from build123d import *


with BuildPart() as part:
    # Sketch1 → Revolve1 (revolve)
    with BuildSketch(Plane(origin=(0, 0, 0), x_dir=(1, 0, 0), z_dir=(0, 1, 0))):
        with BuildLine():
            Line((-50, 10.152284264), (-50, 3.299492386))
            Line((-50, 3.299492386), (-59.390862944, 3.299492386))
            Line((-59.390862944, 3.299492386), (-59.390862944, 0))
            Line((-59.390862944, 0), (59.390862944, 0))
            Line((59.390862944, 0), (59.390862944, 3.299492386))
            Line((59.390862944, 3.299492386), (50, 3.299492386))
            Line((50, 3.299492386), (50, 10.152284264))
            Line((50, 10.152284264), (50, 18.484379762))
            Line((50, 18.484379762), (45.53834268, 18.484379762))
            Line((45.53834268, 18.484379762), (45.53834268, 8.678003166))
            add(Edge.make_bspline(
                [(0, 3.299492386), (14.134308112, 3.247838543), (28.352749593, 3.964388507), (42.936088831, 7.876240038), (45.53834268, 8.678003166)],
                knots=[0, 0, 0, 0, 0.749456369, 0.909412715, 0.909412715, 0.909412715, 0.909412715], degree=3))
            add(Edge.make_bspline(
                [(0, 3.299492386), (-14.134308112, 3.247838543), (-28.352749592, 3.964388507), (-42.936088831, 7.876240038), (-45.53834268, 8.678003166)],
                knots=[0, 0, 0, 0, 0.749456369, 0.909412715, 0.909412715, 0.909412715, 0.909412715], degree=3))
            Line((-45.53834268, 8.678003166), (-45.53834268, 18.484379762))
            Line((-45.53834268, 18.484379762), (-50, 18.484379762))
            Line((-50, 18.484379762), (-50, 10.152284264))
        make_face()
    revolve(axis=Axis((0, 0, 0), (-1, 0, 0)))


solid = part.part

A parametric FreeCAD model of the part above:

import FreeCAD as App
import Part
import Sketcher

doc = App.newDocument("Part")
params = doc.addObject("Spreadsheet::Sheet", "Params")
for row, (alias, value) in enumerate([
    ("revolution_angle", "360 deg"),
], start=1):
    params.set(f"A{row}", alias)
    params.set(f"B{row}", "=" + value)
    params.setAlias(f"B{row}", alias)

body = doc.addObject("PartDesign::Body", "Body")

# Sketch on XZ plane
sketch1 = doc.addObject("Sketcher::SketchObject", "Sketch")
body.addObject(sketch1)
sketch1.AttachmentSupport = (doc.XZ_Plane, [""])
sketch1.MapMode = "FlatFace"
sketch1.addGeometry([
    Part.LineSegment(App.Vector(-50, -3.299492, 0), App.Vector(-59.390863, -3.299492, 0)),  # 0
    Part.LineSegment(App.Vector(-59.390863, -3.299492, 0), App.Vector(-59.390863, 0, 0)),  # 1
    Part.LineSegment(App.Vector(-59.390863, 0, 0), App.Vector(59.390863, 0, 0)),  # 2
    Part.LineSegment(App.Vector(59.390863, 0, 0), App.Vector(59.390863, -3.299492, 0)),  # 3
    Part.LineSegment(App.Vector(59.390863, -3.299492, 0), App.Vector(50, -3.299492, 0)),  # 4
    Part.LineSegment(App.Vector(50, -3.299492, 0), App.Vector(50, -18.48438, 0)),  # 5
    Part.LineSegment(App.Vector(50, -18.48438, 0), App.Vector(45.538343, -18.48438, 0)),  # 6
    Part.LineSegment(App.Vector(45.538343, -18.48438, 0), App.Vector(45.538343, -8.678003, 0)),  # 7
    Part.BSplineCurve([App.Vector(0, -3.299492, 0), App.Vector(14.134308, -3.247839, 0), App.Vector(28.35275, -3.964389, 0), App.Vector(42.936089, -7.87624, 0), App.Vector(45.538343, -8.678003, 0)], [4, 1, 4], [0, 0.749456369, 0.909412715], False, 3, [1, 1, 1, 1, 1], False),  # 8
    Part.BSplineCurve([App.Vector(0, -3.299492, 0), App.Vector(-14.134308, -3.247839, 0), App.Vector(-28.35275, -3.964389, 0), App.Vector(-42.936089, -7.87624, 0), App.Vector(-45.538343, -8.678003, 0)], [4, 1, 4], [0, 0.749456369, 0.909412715], False, 3, [1, 1, 1, 1, 1], False),  # 9
    Part.LineSegment(App.Vector(-45.538343, -8.678003, 0), App.Vector(-45.538343, -18.48438, 0)),  # 10
    Part.LineSegment(App.Vector(-45.538343, -18.48438, 0), App.Vector(-50, -18.48438, 0)),  # 11
    Part.LineSegment(App.Vector(-50, -18.48438, 0), App.Vector(-50, -3.299492, 0)),  # 12
], False)
sketch1.addConstraint([
    Sketcher.Constraint("Block", 8),
    Sketcher.Constraint("Block", 9),
    Sketcher.Constraint("Coincident", 0, 2, 1, 1),
    Sketcher.Constraint("Coincident", 1, 2, 2, 1),
    Sketcher.Constraint("Coincident", 2, 2, 3, 1),
    Sketcher.Constraint("Coincident", 3, 2, 4, 1),
    Sketcher.Constraint("Coincident", 4, 2, 5, 1),
    Sketcher.Constraint("Coincident", 5, 2, 6, 1),
    Sketcher.Constraint("Coincident", 6, 2, 7, 1),
    Sketcher.Constraint("Coincident", 7, 2, 8, 2),
    Sketcher.Constraint("Coincident", 9, 2, 10, 1),
    Sketcher.Constraint("Coincident", 10, 2, 11, 1),
    Sketcher.Constraint("Coincident", 11, 2, 12, 1),
    Sketcher.Constraint("Coincident", 12, 2, 0, 1),
    Sketcher.Constraint("Horizontal", 0),
    Sketcher.Constraint("Vertical", 1),
    Sketcher.Constraint("Horizontal", 2),
    Sketcher.Constraint("Vertical", 3),
    Sketcher.Constraint("Horizontal", 4),
    Sketcher.Constraint("Vertical", 5),
    Sketcher.Constraint("Horizontal", 6),
    Sketcher.Constraint("Vertical", 7),
    Sketcher.Constraint("Vertical", 10),
    Sketcher.Constraint("Horizontal", 11),
    Sketcher.Constraint("Vertical", 12),
    Sketcher.Constraint("Symmetric", 1, 2, 2, 2, -1, 1),
    Sketcher.Constraint("Symmetric", 5, 2, 11, 2, -2),
    Sketcher.Constraint("Horizontal", 0, 2, 3, 2),
    Sketcher.Constraint("DistanceX", -1, 1, 4, 2, 50.0),
    Sketcher.Constraint("DistanceX", 0, 2, 0, 1, 9.390863),
    Sketcher.Constraint("DistanceY", 1, 1, 1, 2, 3.299492),
    Sketcher.Constraint("DistanceY", 5, 2, 5, 1, 15.184887),
])
revolution = doc.addObject("PartDesign::Revolution", "Revolution")
body.addObject(revolution)
revolution.Profile = sketch1
revolution.ReferenceAxis = (sketch1, ["H_Axis"])
revolution.setExpression("Angle", "Params.revolution_angle")

doc.recompute()
